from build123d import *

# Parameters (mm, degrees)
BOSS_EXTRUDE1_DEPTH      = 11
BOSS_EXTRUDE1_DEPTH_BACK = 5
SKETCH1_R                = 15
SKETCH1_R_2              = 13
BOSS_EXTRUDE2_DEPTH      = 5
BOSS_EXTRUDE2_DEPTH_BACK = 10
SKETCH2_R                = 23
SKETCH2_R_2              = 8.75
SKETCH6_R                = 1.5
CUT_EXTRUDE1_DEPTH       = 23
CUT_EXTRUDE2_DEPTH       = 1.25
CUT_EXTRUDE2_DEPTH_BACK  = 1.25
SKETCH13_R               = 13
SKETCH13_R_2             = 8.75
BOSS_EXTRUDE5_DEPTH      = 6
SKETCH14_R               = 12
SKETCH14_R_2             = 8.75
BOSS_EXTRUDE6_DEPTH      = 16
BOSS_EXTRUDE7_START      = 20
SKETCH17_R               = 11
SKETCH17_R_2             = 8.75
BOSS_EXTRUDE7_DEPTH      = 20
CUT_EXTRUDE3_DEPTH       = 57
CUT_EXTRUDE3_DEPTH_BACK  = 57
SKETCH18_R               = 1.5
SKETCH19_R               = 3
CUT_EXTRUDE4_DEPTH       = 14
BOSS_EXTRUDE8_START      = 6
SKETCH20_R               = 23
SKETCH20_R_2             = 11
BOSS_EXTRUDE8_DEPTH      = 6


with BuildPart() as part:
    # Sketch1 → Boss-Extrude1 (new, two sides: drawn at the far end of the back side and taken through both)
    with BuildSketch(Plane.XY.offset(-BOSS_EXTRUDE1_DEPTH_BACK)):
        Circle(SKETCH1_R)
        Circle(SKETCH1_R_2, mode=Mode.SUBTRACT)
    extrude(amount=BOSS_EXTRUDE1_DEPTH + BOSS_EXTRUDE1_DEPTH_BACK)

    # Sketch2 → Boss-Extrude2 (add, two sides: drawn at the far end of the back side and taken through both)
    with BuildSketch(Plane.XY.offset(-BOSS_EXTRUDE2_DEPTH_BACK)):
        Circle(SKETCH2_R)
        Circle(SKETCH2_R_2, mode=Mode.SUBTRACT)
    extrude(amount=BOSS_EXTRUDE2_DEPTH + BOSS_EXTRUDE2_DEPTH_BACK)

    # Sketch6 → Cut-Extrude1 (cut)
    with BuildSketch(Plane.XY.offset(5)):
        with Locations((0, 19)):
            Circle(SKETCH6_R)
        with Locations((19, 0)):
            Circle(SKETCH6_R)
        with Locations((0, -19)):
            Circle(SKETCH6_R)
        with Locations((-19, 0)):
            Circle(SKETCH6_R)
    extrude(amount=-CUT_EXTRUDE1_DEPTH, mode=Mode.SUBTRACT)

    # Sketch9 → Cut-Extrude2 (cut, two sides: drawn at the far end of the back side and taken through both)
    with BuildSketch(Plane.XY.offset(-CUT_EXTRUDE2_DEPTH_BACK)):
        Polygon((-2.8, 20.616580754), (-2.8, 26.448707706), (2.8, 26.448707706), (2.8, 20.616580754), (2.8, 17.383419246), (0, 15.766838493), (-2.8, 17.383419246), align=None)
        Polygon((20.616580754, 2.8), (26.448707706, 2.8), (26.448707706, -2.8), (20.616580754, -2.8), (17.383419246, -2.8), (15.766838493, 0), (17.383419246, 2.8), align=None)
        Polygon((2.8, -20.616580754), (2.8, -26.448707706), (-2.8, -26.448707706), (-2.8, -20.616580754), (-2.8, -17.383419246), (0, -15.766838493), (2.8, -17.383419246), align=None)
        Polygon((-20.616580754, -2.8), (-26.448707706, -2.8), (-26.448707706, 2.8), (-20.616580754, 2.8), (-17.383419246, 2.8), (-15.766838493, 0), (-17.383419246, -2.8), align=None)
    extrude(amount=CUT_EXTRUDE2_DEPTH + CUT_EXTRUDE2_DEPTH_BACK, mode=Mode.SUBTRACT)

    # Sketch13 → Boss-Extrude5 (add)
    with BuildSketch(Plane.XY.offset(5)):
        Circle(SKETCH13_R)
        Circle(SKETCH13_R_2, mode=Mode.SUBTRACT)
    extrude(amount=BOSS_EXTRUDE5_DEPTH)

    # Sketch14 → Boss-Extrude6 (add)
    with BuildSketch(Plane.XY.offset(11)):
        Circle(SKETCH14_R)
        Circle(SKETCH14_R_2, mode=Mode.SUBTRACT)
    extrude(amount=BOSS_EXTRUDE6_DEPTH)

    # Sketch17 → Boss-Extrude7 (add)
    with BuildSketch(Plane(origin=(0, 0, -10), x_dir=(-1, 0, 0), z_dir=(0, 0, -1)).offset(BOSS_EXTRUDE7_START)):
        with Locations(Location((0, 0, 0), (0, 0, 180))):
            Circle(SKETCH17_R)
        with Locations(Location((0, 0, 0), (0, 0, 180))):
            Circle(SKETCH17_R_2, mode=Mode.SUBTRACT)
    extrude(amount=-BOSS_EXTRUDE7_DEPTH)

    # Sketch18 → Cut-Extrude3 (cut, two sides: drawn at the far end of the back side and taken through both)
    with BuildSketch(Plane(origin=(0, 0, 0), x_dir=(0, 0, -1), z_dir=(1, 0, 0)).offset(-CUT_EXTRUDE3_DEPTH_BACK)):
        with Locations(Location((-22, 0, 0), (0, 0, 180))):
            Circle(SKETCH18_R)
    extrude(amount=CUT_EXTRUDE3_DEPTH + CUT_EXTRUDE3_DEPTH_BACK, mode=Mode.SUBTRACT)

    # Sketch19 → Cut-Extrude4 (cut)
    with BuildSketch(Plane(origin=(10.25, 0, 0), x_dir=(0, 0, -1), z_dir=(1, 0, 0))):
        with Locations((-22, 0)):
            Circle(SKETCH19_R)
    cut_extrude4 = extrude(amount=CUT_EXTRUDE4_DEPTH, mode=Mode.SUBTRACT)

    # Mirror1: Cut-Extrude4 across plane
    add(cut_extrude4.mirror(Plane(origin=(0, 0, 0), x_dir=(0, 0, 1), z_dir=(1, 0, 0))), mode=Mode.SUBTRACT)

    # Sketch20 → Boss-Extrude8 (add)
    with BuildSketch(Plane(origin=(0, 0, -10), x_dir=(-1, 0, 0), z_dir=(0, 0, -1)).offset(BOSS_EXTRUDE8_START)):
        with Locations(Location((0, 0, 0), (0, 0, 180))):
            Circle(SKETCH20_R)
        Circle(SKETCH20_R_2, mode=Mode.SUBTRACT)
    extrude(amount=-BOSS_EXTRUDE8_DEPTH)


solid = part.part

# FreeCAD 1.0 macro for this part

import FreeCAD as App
import Part
import Sketcher
from FreeCAD import Vector
Q = App.Units.Quantity

doc = App.newDocument("Part")
body = doc.addObject("PartDesign::Body", "Body")

# Sketch on XY plane
sketch1 = body.newObject("Sketcher::SketchObject", "Sketch")
sketch1.AttachmentSupport = (doc.getObject("XY_Plane"), [""])
sketch1.MapMode = "FlatFace"
sketch1.addGeometry([
    Part.Circle(Vector(0, 0, 0), Vector(0, 0, 1), 15),
    Part.Circle(Vector(0, 0, 0), Vector(0, 0, 1), 13),
], False)
sketch1.addConstraint([
    Sketcher.Constraint("Coincident", 0, 3, -1, 1),
    Sketcher.Constraint("Coincident", 1, 3, -1, 1),
    Sketcher.Constraint("Diameter", 0, 30.0),
    Sketcher.Constraint("Diameter", 1, 26.0),
])
pad1 = body.newObject("PartDesign::Pad", "Pad")
pad1.Profile = sketch1
pad1.Type = "TwoLengths"
pad1.Length = 11
pad1.Length2 = 5

# Sketch on XY plane
sketch2 = body.newObject("Sketcher::SketchObject", "Sketch001")
sketch2.AttachmentSupport = (doc.getObject("XY_Plane"), [""])
sketch2.MapMode = "FlatFace"
sketch2.addGeometry([
    Part.Circle(Vector(0, 0, 0), Vector(0, 0, 1), 23),
    Part.Circle(Vector(0, 0, 0), Vector(0, 0, 1), 8.75),
], False)
sketch2.addConstraint([
    Sketcher.Constraint("Coincident", 0, 3, -1, 1),
    Sketcher.Constraint("Coincident", 1, 3, -1, 1),
    Sketcher.Constraint("Diameter", 0, 46.0),
    Sketcher.Constraint("Diameter", 1, 17.5),
])
pad2 = body.newObject("PartDesign::Pad", "Pad001")
pad2.Profile = sketch2
pad2.Type = "TwoLengths"
pad2.Length = 5
pad2.Length2 = 10

# Sketch on XY plane
sketch3 = body.newObject("Sketcher::SketchObject", "Sketch002")
sketch3.AttachmentSupport = (doc.getObject("XY_Plane"), [""])
sketch3.MapMode = "FlatFace"
sketch3.AttachmentOffset = App.Placement(Vector(0, 0, 5), App.Rotation())
sketch3.addGeometry([
    Part.Circle(Vector(0, 19, 0), Vector(0, 0, 1), 1.5),
    Part.Circle(Vector(19, 0, 0), Vector(0, 0, 1), 1.5),
    Part.Circle(Vector(0, -19, 0), Vector(0, 0, 1), 1.5),
    Part.Circle(Vector(-19, 0, 0), Vector(0, 0, 1), 1.5),
], False)
sketch3.addConstraint([
    Sketcher.Constraint("Equal", 0, 1),
    Sketcher.Constraint("Equal", 1, 2),
    Sketcher.Constraint("Equal", 2, 3),
    Sketcher.Constraint("Symmetric", 0, 3, 2, 3, -1, 1),
    Sketcher.Constraint("Symmetric", 1, 3, 3, 3, -1, 1),
    Sketcher.Constraint("PointOnObject", 0, 3, -2),
    Sketcher.Constraint("PointOnObject", 1, 3, -1),
    Sketcher.Constraint("Diameter", 0, 3.0),
    Sketcher.Constraint("DistanceY", -1, 1, 0, 3, 19.0),
    Sketcher.Constraint("DistanceX", -1, 1, 1, 3, 19.0),
])
pocket1 = body.newObject("PartDesign::Pocket", "Pocket")
pocket1.Profile = sketch3
pocket1.Length = 23

# Sketch on XY plane
sketch4 = body.newObject("Sketcher::SketchObject", "Sketch003")
sketch4.AttachmentSupport = (doc.getObject("XY_Plane"), [""])
sketch4.MapMode = "FlatFace"
sketch4.addGeometry([
    Part.LineSegment(Vector(-2.8, 26.448708, 0), Vector(-2.8, 17.383419, 0)),  # 0
    Part.LineSegment(Vector(-2.8, 17.383419, 0), Vector(0, 15.766838, 0)),  # 1
    Part.LineSegment(Vector(0, 15.766838, 0), Vector(2.8, 17.383419, 0)),  # 2
    Part.LineSegment(Vector(2.8, 17.383419, 0), Vector(2.8, 26.448708, 0)),  # 3
    Part.LineSegment(Vector(2.8, 26.448708, 0), Vector(-2.8, 26.448708, 0)),  # 4
    Part.LineSegment(Vector(26.448708, 2.8, 0), Vector(17.383419, 2.8, 0)),  # 5
    Part.LineSegment(Vector(17.383419, 2.8, 0), Vector(15.766838, 0, 0)),  # 6
    Part.LineSegment(Vector(15.766838, 0, 0), Vector(17.383419, -2.8, 0)),  # 7
    Part.LineSegment(Vector(17.383419, -2.8, 0), Vector(26.448708, -2.8, 0)),  # 8
    Part.LineSegment(Vector(26.448708, -2.8, 0), Vector(26.448708, 2.8, 0)),  # 9
    Part.LineSegment(Vector(2.8, -26.448708, 0), Vector(2.8, -17.383419, 0)),  # 10
    Part.LineSegment(Vector(2.8, -17.383419, 0), Vector(0, -15.766838, 0)),  # 11
    Part.LineSegment(Vector(0, -15.766838, 0), Vector(-2.8, -17.383419, 0)),  # 12
    Part.LineSegment(Vector(-2.8, -17.383419, 0), Vector(-2.8, -26.448708, 0)),  # 13
    Part.LineSegment(Vector(-2.8, -26.448708, 0), Vector(2.8, -26.448708, 0)),  # 14
    Part.LineSegment(Vector(-26.448708, -2.8, 0), Vector(-17.383419, -2.8, 0)),  # 15
    Part.LineSegment(Vector(-17.383419, -2.8, 0), Vector(-15.766838, 0, 0)),  # 16
    Part.LineSegment(Vector(-15.766838, 0, 0), Vector(-17.383419, 2.8, 0)),  # 17
    Part.LineSegment(Vector(-17.383419, 2.8, 0), Vector(-26.448708, 2.8, 0)),  # 18
    Part.LineSegment(Vector(-26.448708, 2.8, 0), Vector(-26.448708, -2.8, 0)),  # 19
], False)
sketch4.addConstraint([
    Sketcher.Constraint("Coincident", 0, 2, 1, 1),
    Sketcher.Constraint("Coincident", 1, 2, 2, 1),
    Sketcher.Constraint("Coincident", 2, 2, 3, 1),
    Sketcher.Constraint("Coincident", 3, 2, 4, 1),
    Sketcher.Constraint("Coincident", 4, 2, 0, 1),
    Sketcher.Constraint("Coincident", 5, 2, 6, 1),
    Sketcher.Constraint("Coincident", 6, 2, 7, 1),
    Sketcher.Constraint("Coincident", 7, 2, 8, 1),
    Sketcher.Constraint("Coincident", 8, 2, 9, 1),
    Sketcher.Constraint("Coincident", 9, 2, 5, 1),
    Sketcher.Constraint("Coincident", 10, 2, 11, 1),
    Sketcher.Constraint("Coincident", 11, 2, 12, 1),
    Sketcher.Constraint("Coincident", 12, 2, 13, 1),
    Sketcher.Constraint("Coincident", 13, 2, 14, 1),
    Sketcher.Constraint("Coincident", 14, 2, 10, 1),
    Sketcher.Constraint("Coincident", 15, 2, 16, 1),
    Sketcher.Constraint("Coincident", 16, 2, 17, 1),
    Sketcher.Constraint("Coincident", 17, 2, 18, 1),
    Sketcher.Constraint("Coincident", 18, 2, 19, 1),
    Sketcher.Constraint("Coincident", 19, 2, 15, 1),
    Sketcher.Constraint("Vertical", 0),
    Sketcher.Constraint("Vertical", 3),
    Sketcher.Constraint("Horizontal", 4),
    Sketcher.Constraint("Horizontal", 5),
    Sketcher.Constraint("Horizontal", 8),
    Sketcher.Constraint("Vertical", 9),
    Sketcher.Constraint("Vertical", 10),
    Sketcher.Constraint("Vertical", 13),
    Sketcher.Constraint("Horizontal", 14),
    Sketcher.Constraint("Horizontal", 15),
    Sketcher.Constraint("Horizontal", 18),
    Sketcher.Constraint("Vertical", 19),
    Sketcher.Constraint("Symmetric", 0, 2, 10, 2, -1, 1),
    Sketcher.Constraint("Symmetric", 1, 2, 11, 2, -1, 1),
    Sketcher.Constraint("Symmetric", 2, 2, 12, 2, -1, 1),
    Sketcher.Constraint("Symmetric", 5, 2, 15, 2, -1, 1),
    Sketcher.Constraint("Symmetric", 6, 2, 16, 2, -1, 1),
    Sketcher.Constraint("Symmetric", 7, 2, 17, 2, -1, 1),
    Sketcher.Constraint("Symmetric", 0, 2, 2, 2, -2),
    Sketcher.Constraint("Symmetric", 7, 2, 15, 2, -2),
    Sketcher.Constraint("PointOnObject", 1, 2, -2),
    Sketcher.Constraint("PointOnObject", 6, 2, -1),
    Sketcher.Constraint("Perpendicular", 1, 6),
    Sketcher.Constraint("Equal", 8, 15),
    Sketcher.Constraint("Equal", 18, 0),
    Sketcher.Constraint("Equal", 14, 9),
    Sketcher.Constraint("Equal", 3, 10),
    Sketcher.Constraint("Angle", 1, Q("-30 deg")),
    Sketcher.Constraint("DistanceX", 4, 2, 4, 1, 5.6),
    Sketcher.Constraint("DistanceX", 5, 2, 5, 1, 9.065288),
    Sketcher.Constraint("DistanceY", -1, 1, 0, 2, 17.383419),
    Sketcher.Constraint("DistanceX", -1, 1, 5, 2, 17.383419),
])
pocket2 = body.newObject("PartDesign::Pocket", "Pocket001")
pocket2.Profile = sketch4
pocket2.Type = "TwoLengths"
pocket2.Length = 1.25
pocket2.Length2 = 1.25
pocket2.Reversed = True

# Sketch on XY plane
sketch5 = body.newObject("Sketcher::SketchObject", "Sketch004")
sketch5.AttachmentSupport = (doc.getObject("XY_Plane"), [""])
sketch5.MapMode = "FlatFace"
sketch5.AttachmentOffset = App.Placement(Vector(0, 0, 5), App.Rotation())
sketch5.addGeometry([
    Part.Circle(Vector(0, 0, 0), Vector(0, 0, 1), 13),
    Part.Circle(Vector(0, 0, 0), Vector(0, 0, 1), 8.75),
], False)
sketch5.addConstraint([
    Sketcher.Constraint("Coincident", 0, 3, -1, 1),
    Sketcher.Constraint("Coincident", 1, 3, -1, 1),
    Sketcher.Constraint("Diameter", 0, 26.0),
    Sketcher.Constraint("Diameter", 1, 17.5),
])
pad3 = body.newObject("PartDesign::Pad", "Pad002")
pad3.Profile = sketch5
pad3.Length = 6

# Sketch on XY plane
sketch6 = body.newObject("Sketcher::SketchObject", "Sketch005")
sketch6.AttachmentSupport = (doc.getObject("XY_Plane"), [""])
sketch6.MapMode = "FlatFace"
sketch6.AttachmentOffset = App.Placement(Vector(0, 0, 11), App.Rotation())
sketch6.addGeometry([
    Part.Circle(Vector(0, 0, 0), Vector(0, 0, 1), 12),
    Part.Circle(Vector(0, 0, 0), Vector(0, 0, 1), 8.75),
], False)
sketch6.addConstraint([
    Sketcher.Constraint("Coincident", 0, 3, -1, 1),
    Sketcher.Constraint("Coincident", 1, 3, -1, 1),
    Sketcher.Constraint("Diameter", 0, 24.0),
    Sketcher.Constraint("Diameter", 1, 17.5),
])
pad4 = body.newObject("PartDesign::Pad", "Pad003")
pad4.Profile = sketch6
pad4.Length = 16

# Sketch on XY plane
sketch7 = body.newObject("Sketcher::SketchObject", "Sketch006")
sketch7.AttachmentSupport = (doc.getObject("XY_Plane"), [""])
sketch7.MapMode = "FlatFace"
sketch7.AttachmentOffset = App.Placement(Vector(0, 0, -30), App.Rotation())
sketch7.addGeometry([
    Part.Circle(Vector(0, 0, 0), Vector(0, 0, 1), 11),
    Part.Circle(Vector(0, 0, 0), Vector(0, 0, 1), 8.75),
], False)
sketch7.addConstraint([
    Sketcher.Constraint("Coincident", 0, 3, -1, 1),
    Sketcher.Constraint("Coincident", 1, 3, -1, 1),
    Sketcher.Constraint("Diameter", 0, 22.0),
    Sketcher.Constraint("Diameter", 1, 17.5),
])
pad5 = body.newObject("PartDesign::Pad", "Pad004")
pad5.Profile = sketch7
pad5.Length = 20

# Sketch on YZ plane
sketch8 = body.newObject("Sketcher::SketchObject", "Sketch007")
sketch8.AttachmentSupport = (doc.getObject("YZ_Plane"), [""])
sketch8.MapMode = "FlatFace"
sketch8.addGeometry(Part.Circle(Vector(0, 22, 0), Vector(0, 0, 1), 1.5), False)
sketch8.addConstraint([
    Sketcher.Constraint("PointOnObject", 0, 3, -2),
    Sketcher.Constraint("Diameter", 0, 3.0),
    Sketcher.Constraint("DistanceY", -1, 1, 0, 3, 22.0),
])
pocket3 = body.newObject("PartDesign::Pocket", "Pocket002")
pocket3.Profile = sketch8
pocket3.Type = "ThroughAll"
pocket3.Midplane = True

# Sketch on YZ plane
sketch9 = body.newObject("Sketcher::SketchObject", "Sketch008")
sketch9.AttachmentSupport = (doc.getObject("YZ_Plane"), [""])
sketch9.MapMode = "FlatFace"
sketch9.AttachmentOffset = App.Placement(Vector(0, 0, 10.25), App.Rotation())
sketch9.addGeometry(Part.Circle(Vector(0, 22, 0), Vector(0, 0, 1), 3), False)
sketch9.addConstraint([
    Sketcher.Constraint("PointOnObject", 0, 3, -2),
    Sketcher.Constraint("Diameter", 0, 6.0),
    Sketcher.Constraint("DistanceY", -1, 1, 0, 3, 22.0),
])
pocket4 = body.newObject("PartDesign::Pocket", "Pocket003")
pocket4.Profile = sketch9
pocket4.Length = 14
pocket4.Reversed = True
doc.recompute()

mirrored = body.newObject("PartDesign::Mirrored", "Mirrored")
mirrored.Originals = [pocket4]
mirrored.MirrorPlane = (doc.getObject("YZ_Plane"), [""])
body.Tip = mirrored

# Sketch on XY plane
sketch10 = body.newObject("Sketcher::SketchObject", "Sketch009")
sketch10.AttachmentSupport = (doc.getObject("XY_Plane"), [""])
sketch10.MapMode = "FlatFace"
sketch10.AttachmentOffset = App.Placement(Vector(0, 0, -16), App.Rotation())
sketch10.addGeometry([
    Part.Circle(Vector(0, 0, 0), Vector(0, 0, 1), 23),
    Part.Circle(Vector(0, 0, 0), Vector(0, 0, 1), 11),
], False)
sketch10.addConstraint([
    Sketcher.Constraint("Coincident", 0, 3, -1, 1),
    Sketcher.Constraint("Coincident", 1, 3, -1, 1),
    Sketcher.Constraint("Diameter", 0, 46.0),
    Sketcher.Constraint("Diameter", 1, 22.0),
])
pad6 = body.newObject("PartDesign::Pad", "Pad005")
pad6.Profile = sketch10
pad6.Length = 6

doc.recompute()
